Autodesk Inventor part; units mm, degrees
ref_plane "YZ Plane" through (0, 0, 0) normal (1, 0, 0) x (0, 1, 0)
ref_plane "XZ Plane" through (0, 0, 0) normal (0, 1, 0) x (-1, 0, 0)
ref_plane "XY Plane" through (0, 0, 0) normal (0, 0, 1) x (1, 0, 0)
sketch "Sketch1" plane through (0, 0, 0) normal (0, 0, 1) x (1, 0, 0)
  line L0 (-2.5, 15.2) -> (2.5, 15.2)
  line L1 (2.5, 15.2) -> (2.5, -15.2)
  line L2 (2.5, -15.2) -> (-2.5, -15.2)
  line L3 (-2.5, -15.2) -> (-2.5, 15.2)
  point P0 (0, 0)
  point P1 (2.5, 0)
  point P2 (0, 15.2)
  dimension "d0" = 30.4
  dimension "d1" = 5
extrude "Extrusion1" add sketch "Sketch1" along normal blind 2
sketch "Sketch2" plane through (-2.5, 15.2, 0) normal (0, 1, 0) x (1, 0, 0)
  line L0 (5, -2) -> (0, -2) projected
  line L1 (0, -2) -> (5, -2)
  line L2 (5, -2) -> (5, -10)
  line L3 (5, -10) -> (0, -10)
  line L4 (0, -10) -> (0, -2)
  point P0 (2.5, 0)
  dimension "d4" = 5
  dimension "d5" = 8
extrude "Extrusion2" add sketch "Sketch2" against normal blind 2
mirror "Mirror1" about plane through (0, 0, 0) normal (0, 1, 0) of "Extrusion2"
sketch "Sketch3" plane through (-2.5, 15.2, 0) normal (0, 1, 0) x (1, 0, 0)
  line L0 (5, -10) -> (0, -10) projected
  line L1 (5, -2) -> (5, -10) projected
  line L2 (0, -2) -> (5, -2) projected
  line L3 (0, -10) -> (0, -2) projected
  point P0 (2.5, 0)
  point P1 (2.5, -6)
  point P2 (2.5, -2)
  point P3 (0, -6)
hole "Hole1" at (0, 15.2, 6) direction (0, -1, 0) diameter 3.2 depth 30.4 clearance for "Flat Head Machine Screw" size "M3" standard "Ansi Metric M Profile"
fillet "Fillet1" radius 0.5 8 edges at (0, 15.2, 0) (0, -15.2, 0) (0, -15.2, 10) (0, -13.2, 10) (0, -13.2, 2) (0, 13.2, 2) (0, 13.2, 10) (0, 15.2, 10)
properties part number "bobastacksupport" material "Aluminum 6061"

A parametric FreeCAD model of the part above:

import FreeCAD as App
import Part
import Sketcher

V = App.Vector
Q = App.Units.Quantity


def edges_at(feature, points):
    """Names of the edges that pass closest to the given points."""
    edges = feature.Shape.Edges
    near = lambda p: min(range(len(edges)), key=lambda i: edges[i].distToShape(Part.Vertex(*p))[0])
    return sorted({f"Edge{near(p) + 1}" for p in points})

doc = App.newDocument("Part")
body = doc.addObject("PartDesign::Body", "Body")

# Sketch on XY plane
sketch1 = doc.addObject("Sketcher::SketchObject", "Sketch")
body.addObject(sketch1)
sketch1.AttachmentSupport = (doc.XY_Plane, [""])
sketch1.MapMode = "FlatFace"
sketch1.addGeometry([
    Part.LineSegment(V(2.5, 15.2, 0), V(-2.5, 15.2, 0)),
    Part.LineSegment(V(-2.5, 15.2, 0), V(-2.5, -15.2, 0)),
    Part.LineSegment(V(-2.5, -15.2, 0), V(2.5, -15.2, 0)),
    Part.LineSegment(V(2.5, -15.2, 0), V(2.5, 15.2, 0)),
], False)
sketch1.addConstraint([
    Sketcher.Constraint("Coincident", 0, 2, 1, 1),
    Sketcher.Constraint("Coincident", 1, 2, 2, 1),
    Sketcher.Constraint("Coincident", 2, 2, 3, 1),
    Sketcher.Constraint("Coincident", 3, 2, 0, 1),
    Sketcher.Constraint("Horizontal", 0),
    Sketcher.Constraint("Vertical", 1),
    Sketcher.Constraint("Horizontal", 2),
    Sketcher.Constraint("Vertical", 3),
    Sketcher.Constraint("Symmetric", 0, 2, 2, 2, -1, 1),
    Sketcher.Constraint("DistanceX", 0, 2, 0, 1, Q("5 mm")),
    Sketcher.Constraint("DistanceY", 1, 2, 1, 1, Q("30.4 mm")),
])
pad1 = doc.addObject("PartDesign::Pad", "Pad")
body.addObject(pad1)
pad1.Profile = sketch1
pad1.Length = 2

# Sketch on XZ plane
sketch2 = doc.addObject("Sketcher::SketchObject", "Sketch001")
body.addObject(sketch2)
sketch2.AttachmentSupport = (doc.XZ_Plane, [""])
sketch2.MapMode = "FlatFace"
sketch2.AttachmentOffset = App.Placement(V(0, 0, -15.2), App.Rotation())
sketch2.addGeometry([
    Part.LineSegment(V(2.5, 10, 0), V(2.5, 2, 0)),
    Part.LineSegment(V(2.5, 2, 0), V(-2.5, 2, 0)),
    Part.LineSegment(V(-2.5, 2, 0), V(-2.5, 10, 0)),
    Part.LineSegment(V(-2.5, 10, 0), V(2.5, 10, 0)),
], False)
sketch2.addConstraint([
    Sketcher.Constraint("Coincident", 0, 2, 1, 1),
    Sketcher.Constraint("Coincident", 1, 2, 2, 1),
    Sketcher.Constraint("Coincident", 2, 2, 3, 1),
    Sketcher.Constraint("Coincident", 3, 2, 0, 1),
    Sketcher.Constraint("Vertical", 0),
    Sketcher.Constraint("Horizontal", 1),
    Sketcher.Constraint("Vertical", 2),
    Sketcher.Constraint("Horizontal", 3),
    Sketcher.Constraint("DistanceX", 1, 2, 1, 1, Q("5 mm")),
    Sketcher.Constraint("DistanceY", 0, 2, 0, 1, Q("8 mm")),
    Sketcher.Constraint("DistanceY", -1, 1, 0, 2, Q("2 mm")),
    Sketcher.Constraint("DistanceX", -1, 1, 0, 2, Q("2.5 mm")),
])
pad2 = doc.addObject("PartDesign::Pad", "Pad001")
body.addObject(pad2)
pad2.Profile = sketch2
pad2.Length = 2
doc.recompute()

mirrored = doc.addObject("PartDesign::Mirrored", "Mirrored")
body.addObject(mirrored)
mirrored.Originals = [pad2]
mirrored.MirrorPlane = (doc.XZ_Plane, [""])
body.Tip = mirrored

# Sketch on XZ plane
sketch3 = doc.addObject("Sketcher::SketchObject", "Sketch002")
body.addObject(sketch3)
sketch3.AttachmentSupport = (doc.XZ_Plane, [""])
sketch3.MapMode = "FlatFace"
sketch3.AttachmentOffset = App.Placement(V(0, 0, -15.2), App.Rotation())
sketch3.addGeometry(Part.Circle(V(0, 6, 0), V(0, 0, 1), 1.6), False)
sketch3.addConstraint([
    Sketcher.Constraint("PointOnObject", 0, 3, -2),
    Sketcher.Constraint("Diameter", 0, Q("3.2 mm")),
    Sketcher.Constraint("DistanceY", -1, 1, 0, 3, Q("6 mm")),
])
doc.recompute()
hole = doc.addObject("PartDesign::Hole", "Hole")
body.addObject(hole)
hole.Profile = sketch3
hole.ThreadType = "None"
hole.Diameter = 3.2
hole.DepthType = "Dimension"
hole.Depth = 30.4
hole.DrillPoint = "Flat"
hole.Reversed = True
doc.recompute()

fillet = doc.addObject("PartDesign::Fillet", "Fillet")
body.addObject(fillet)
fillet.Base = (hole, edges_at(hole, [
    (0, 15.2, 0),
    (0, -15.2, 0),
    (0, -15.2, 10),
    (0, -13.2, 10),
    (0, -13.2, 2),
    (0, 13.2, 2),
    (0, 13.2, 10),
    (0, 15.2, 10),
]))
fillet.Radius = 0.5

doc.recompute()
